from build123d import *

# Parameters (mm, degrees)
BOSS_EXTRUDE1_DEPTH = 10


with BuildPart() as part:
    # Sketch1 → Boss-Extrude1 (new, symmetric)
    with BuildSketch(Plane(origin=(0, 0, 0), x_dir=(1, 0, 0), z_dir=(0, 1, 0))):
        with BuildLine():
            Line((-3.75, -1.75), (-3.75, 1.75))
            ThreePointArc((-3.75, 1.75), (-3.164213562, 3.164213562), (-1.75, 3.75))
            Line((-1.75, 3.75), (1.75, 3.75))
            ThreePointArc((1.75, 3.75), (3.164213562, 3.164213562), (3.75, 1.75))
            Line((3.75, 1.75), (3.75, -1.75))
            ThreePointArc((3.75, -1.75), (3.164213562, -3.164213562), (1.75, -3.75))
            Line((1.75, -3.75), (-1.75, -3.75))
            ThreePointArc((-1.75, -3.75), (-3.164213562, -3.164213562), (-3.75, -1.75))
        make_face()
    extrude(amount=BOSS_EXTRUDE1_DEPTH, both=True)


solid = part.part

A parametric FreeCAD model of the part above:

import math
import FreeCAD as App
import Part
import Sketcher
from FreeCAD import Vector
Q = App.Units.Quantity

doc = App.newDocument("Part")
body = doc.addObject("PartDesign::Body", "Body")

sketch1 = doc.addObject("Sketcher::SketchObject", "Sketch")
body.addObject(sketch1)
sketch1.AttachmentSupport = (doc.XZ_Plane, [""])
sketch1.MapMode = "FlatFace"
sketch1.addGeometry([
    Part.LineSegment(Vector(-3.8, -1.8, 0), Vector(-3.8, 1.8, 0)),
    Part.ArcOfCircle(Part.Circle(Vector(-1.7, 1.7, 0), Vector(0, 0, 1), 2), math.radians(90), math.radians(180)),
    Part.LineSegment(Vector(-1.8, 3.8, 0), Vector(1.8, 3.8, 0)),
    Part.ArcOfCircle(Part.Circle(Vector(1.7, 1.7, 0), Vector(0, 0, 1), 2), math.radians(0), math.radians(90)),
    Part.LineSegment(Vector(3.8, 1.8, 0), Vector(3.8, -1.8, 0)),
    Part.ArcOfCircle(Part.Circle(Vector(1.7, -1.7, 0), Vector(0, 0, 1), 2), math.radians(-90), math.radians(0)),
    Part.LineSegment(Vector(1.8, -3.8, 0), Vector(-1.8, -3.8, 0)),
    Part.ArcOfCircle(Part.Circle(Vector(-1.7, -1.7, 0), Vector(0, 0, 1), 2), math.radians(-180), math.radians(-90)),
], False)
sketch1.addConstraint([
    Sketcher.Constraint("Tangent", 0, 2, 1, 2),
    Sketcher.Constraint("Tangent", 1, 1, 2, 1),
    Sketcher.Constraint("Tangent", 2, 2, 3, 2),
    Sketcher.Constraint("Tangent", 3, 1, 4, 1),
    Sketcher.Constraint("Tangent", 4, 2, 5, 2),
    Sketcher.Constraint("Tangent", 5, 1, 6, 1),
    Sketcher.Constraint("Tangent", 6, 2, 7, 2),
    Sketcher.Constraint("Tangent", 7, 1, 0, 1),
    Sketcher.Constraint("Vertical", 0),
    Sketcher.Constraint("Horizontal", 2),
    Sketcher.Constraint("Vertical", 4),
    Sketcher.Constraint("Horizontal", 6),
    Sketcher.Constraint("Equal", 1, 3),
    Sketcher.Constraint("Equal", 3, 5),
    Sketcher.Constraint("Equal", 5, 7),
    Sketcher.Constraint("Symmetric", 1, 3, 5, 3, -1, 1),
    Sketcher.Constraint("Equal", 6, 0),
    Sketcher.Constraint("Radius", 1, Q("2 mm")),
    Sketcher.Constraint("DistanceX", 2, 1, 2, 2, Q("3.5 mm")),
])
pad1 = doc.addObject("PartDesign::Pad", "Pad")
body.addObject(pad1)
pad1.Profile = sketch1
pad1.Length = 20
pad1.Midplane = True

doc.recompute()
